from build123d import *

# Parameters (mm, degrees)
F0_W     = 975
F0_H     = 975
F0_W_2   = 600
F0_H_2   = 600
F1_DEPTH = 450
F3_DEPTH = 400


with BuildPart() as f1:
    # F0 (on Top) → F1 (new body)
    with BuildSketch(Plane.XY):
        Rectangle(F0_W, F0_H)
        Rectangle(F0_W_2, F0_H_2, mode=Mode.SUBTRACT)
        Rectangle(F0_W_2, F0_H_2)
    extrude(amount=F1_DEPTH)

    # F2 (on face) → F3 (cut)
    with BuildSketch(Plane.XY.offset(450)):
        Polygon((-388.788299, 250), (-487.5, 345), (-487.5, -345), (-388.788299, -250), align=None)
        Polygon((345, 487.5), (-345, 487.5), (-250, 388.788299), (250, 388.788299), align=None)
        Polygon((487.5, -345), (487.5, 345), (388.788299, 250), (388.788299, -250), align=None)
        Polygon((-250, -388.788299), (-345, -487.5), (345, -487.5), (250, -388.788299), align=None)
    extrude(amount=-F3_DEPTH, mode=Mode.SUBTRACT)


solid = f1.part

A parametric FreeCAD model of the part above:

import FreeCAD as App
import Part
import Sketcher
from FreeCAD import Vector


def add_polygon(sketch, points):
    """Adds a closed chain of lines whose ends are joined by coincident constraints."""
    first, n = sketch.GeometryCount, len(points)
    for a, b in zip(points, points[1:] + points[:1]):
        sketch.addGeometry(Part.LineSegment(App.Vector(*a, 0), App.Vector(*b, 0)), False)
    for i in range(n):
        sketch.addConstraint(Sketcher.Constraint("Coincident", first + i, 2, first + (i + 1) % n, 1))

doc = App.newDocument("Part")
params = doc.addObject("Spreadsheet::Sheet", "Params")
for row, (alias, value) in enumerate([
    ("sketch1_width", "975 mm"),
    ("pad1_length", "450 mm"),
    ("sketch2_width", "690 mm"),
    ("sketch2_width2", "500 mm"),
    ("sketch2_length", "137 mm"),
    ("pocket1_length", "400 mm"),
], start=1):
    params.set(f"A{row}", alias)
    params.set(f"B{row}", "=" + value)
    params.setAlias(f"B{row}", alias)

body = doc.addObject("PartDesign::Body", "Body")

sketch1 = doc.addObject("Sketcher::SketchObject", "Sketch")
body.addObject(sketch1)
sketch1.AttachmentSupport = (doc.XY_Plane, [""])
sketch1.MapMode = "FlatFace"
add_polygon(sketch1, [(-488, 488), (-488, -488), (488, -488), (488, 488)])
sketch1.addConstraint([
    Sketcher.Constraint("Vertical", 0),
    Sketcher.Constraint("Horizontal", 1),
    Sketcher.Constraint("Vertical", 2),
    Sketcher.Constraint("Horizontal", 3),
    Sketcher.Constraint("Symmetric", 0, 2, 2, 2, -1, 1),
    Sketcher.Constraint("Equal", 3, 0),
    Sketcher.Constraint("DistanceX", 1, 1, 1, 2, 975.0),
])
sketch1.setExpression("Constraints[10]", "Params.sketch1_width")
pad1 = doc.addObject("PartDesign::Pad", "Pad")
body.addObject(pad1)
pad1.Profile = sketch1
pad1.setExpression("Length", "Params.pad1_length")

sketch2 = doc.addObject("Sketcher::SketchObject", "Sketch001")
body.addObject(sketch2)
sketch2.AttachmentSupport = (doc.XY_Plane, [""])
sketch2.MapMode = "FlatFace"
sketch2.AttachmentOffset = App.Placement(Vector(0, 0, 450), App.Rotation())
add_polygon(sketch2, [(-389, 250), (-488, 345), (-488, -345), (-389, -250)])
add_polygon(sketch2, [(345, 488), (-345, 488), (-250, 389), (250, 389)])
add_polygon(sketch2, [(488, -345), (488, 345), (389, 250), (389, -250)])
add_polygon(sketch2, [(-250, -389), (-345, -488), (345, -488), (250, -389)])
sketch2.addConstraint([
    Sketcher.Constraint("Vertical", 1),
    Sketcher.Constraint("Vertical", 3),
    Sketcher.Constraint("Horizontal", 4),
    Sketcher.Constraint("Horizontal", 6),
    Sketcher.Constraint("Vertical", 8),
    Sketcher.Constraint("Vertical", 10),
    Sketcher.Constraint("Horizontal", 13),
    Sketcher.Constraint("Horizontal", 15),
    Sketcher.Constraint("Symmetric", 1, 2, 8, 2, -1, 1),
    Sketcher.Constraint("Symmetric", 2, 2, 9, 2, -1, 1),
    Sketcher.Constraint("Symmetric", 7, 2, 12, 2, -1, 1),
    Sketcher.Constraint("Symmetric", 5, 2, 14, 2, -1, 1),
    Sketcher.Constraint("Perpendicular", 2, 5),
    Sketcher.Constraint("Perpendicular", 0, 7),
    Sketcher.Constraint("Perpendicular", 7, 11),
    Sketcher.Constraint("Perpendicular", 11, 12),
    Sketcher.Constraint("Perpendicular", 9, 14),
    Sketcher.Constraint("Horizontal", 0, 2, 8, 2),
    Sketcher.Constraint("Horizontal", 3, 2, 9, 2),
    Sketcher.Constraint("Horizontal", 2, 2, 10, 2),
    Sketcher.Constraint("Vertical", 4, 2, 12, 2),
    Sketcher.Constraint("Equal", 13, 1),
    Sketcher.Constraint("Equal", 15, 3),
    Sketcher.Constraint("DistanceX", 4, 2, 4, 1, 690.0),
    Sketcher.Constraint("DistanceX", 6, 1, 6, 2, 500.0),
    Sketcher.Constraint("Distance", 0, 137.0),
    Sketcher.Constraint("DistanceX", 0, 2, -1, 1, 487.5),
    Sketcher.Constraint("DistanceY", -1, 1, 4, 2, 487.5),
])
sketch2.setExpression("Constraints[39]", "Params.sketch2_width")
sketch2.setExpression("Constraints[40]", "Params.sketch2_width2")
sketch2.setExpression("Constraints[41]", "Params.sketch2_length")
pocket1 = doc.addObject("PartDesign::Pocket", "Pocket")
body.addObject(pocket1)
pocket1.Profile = sketch2
pocket1.setExpression("Length", "Params.pocket1_length")

doc.recompute()
